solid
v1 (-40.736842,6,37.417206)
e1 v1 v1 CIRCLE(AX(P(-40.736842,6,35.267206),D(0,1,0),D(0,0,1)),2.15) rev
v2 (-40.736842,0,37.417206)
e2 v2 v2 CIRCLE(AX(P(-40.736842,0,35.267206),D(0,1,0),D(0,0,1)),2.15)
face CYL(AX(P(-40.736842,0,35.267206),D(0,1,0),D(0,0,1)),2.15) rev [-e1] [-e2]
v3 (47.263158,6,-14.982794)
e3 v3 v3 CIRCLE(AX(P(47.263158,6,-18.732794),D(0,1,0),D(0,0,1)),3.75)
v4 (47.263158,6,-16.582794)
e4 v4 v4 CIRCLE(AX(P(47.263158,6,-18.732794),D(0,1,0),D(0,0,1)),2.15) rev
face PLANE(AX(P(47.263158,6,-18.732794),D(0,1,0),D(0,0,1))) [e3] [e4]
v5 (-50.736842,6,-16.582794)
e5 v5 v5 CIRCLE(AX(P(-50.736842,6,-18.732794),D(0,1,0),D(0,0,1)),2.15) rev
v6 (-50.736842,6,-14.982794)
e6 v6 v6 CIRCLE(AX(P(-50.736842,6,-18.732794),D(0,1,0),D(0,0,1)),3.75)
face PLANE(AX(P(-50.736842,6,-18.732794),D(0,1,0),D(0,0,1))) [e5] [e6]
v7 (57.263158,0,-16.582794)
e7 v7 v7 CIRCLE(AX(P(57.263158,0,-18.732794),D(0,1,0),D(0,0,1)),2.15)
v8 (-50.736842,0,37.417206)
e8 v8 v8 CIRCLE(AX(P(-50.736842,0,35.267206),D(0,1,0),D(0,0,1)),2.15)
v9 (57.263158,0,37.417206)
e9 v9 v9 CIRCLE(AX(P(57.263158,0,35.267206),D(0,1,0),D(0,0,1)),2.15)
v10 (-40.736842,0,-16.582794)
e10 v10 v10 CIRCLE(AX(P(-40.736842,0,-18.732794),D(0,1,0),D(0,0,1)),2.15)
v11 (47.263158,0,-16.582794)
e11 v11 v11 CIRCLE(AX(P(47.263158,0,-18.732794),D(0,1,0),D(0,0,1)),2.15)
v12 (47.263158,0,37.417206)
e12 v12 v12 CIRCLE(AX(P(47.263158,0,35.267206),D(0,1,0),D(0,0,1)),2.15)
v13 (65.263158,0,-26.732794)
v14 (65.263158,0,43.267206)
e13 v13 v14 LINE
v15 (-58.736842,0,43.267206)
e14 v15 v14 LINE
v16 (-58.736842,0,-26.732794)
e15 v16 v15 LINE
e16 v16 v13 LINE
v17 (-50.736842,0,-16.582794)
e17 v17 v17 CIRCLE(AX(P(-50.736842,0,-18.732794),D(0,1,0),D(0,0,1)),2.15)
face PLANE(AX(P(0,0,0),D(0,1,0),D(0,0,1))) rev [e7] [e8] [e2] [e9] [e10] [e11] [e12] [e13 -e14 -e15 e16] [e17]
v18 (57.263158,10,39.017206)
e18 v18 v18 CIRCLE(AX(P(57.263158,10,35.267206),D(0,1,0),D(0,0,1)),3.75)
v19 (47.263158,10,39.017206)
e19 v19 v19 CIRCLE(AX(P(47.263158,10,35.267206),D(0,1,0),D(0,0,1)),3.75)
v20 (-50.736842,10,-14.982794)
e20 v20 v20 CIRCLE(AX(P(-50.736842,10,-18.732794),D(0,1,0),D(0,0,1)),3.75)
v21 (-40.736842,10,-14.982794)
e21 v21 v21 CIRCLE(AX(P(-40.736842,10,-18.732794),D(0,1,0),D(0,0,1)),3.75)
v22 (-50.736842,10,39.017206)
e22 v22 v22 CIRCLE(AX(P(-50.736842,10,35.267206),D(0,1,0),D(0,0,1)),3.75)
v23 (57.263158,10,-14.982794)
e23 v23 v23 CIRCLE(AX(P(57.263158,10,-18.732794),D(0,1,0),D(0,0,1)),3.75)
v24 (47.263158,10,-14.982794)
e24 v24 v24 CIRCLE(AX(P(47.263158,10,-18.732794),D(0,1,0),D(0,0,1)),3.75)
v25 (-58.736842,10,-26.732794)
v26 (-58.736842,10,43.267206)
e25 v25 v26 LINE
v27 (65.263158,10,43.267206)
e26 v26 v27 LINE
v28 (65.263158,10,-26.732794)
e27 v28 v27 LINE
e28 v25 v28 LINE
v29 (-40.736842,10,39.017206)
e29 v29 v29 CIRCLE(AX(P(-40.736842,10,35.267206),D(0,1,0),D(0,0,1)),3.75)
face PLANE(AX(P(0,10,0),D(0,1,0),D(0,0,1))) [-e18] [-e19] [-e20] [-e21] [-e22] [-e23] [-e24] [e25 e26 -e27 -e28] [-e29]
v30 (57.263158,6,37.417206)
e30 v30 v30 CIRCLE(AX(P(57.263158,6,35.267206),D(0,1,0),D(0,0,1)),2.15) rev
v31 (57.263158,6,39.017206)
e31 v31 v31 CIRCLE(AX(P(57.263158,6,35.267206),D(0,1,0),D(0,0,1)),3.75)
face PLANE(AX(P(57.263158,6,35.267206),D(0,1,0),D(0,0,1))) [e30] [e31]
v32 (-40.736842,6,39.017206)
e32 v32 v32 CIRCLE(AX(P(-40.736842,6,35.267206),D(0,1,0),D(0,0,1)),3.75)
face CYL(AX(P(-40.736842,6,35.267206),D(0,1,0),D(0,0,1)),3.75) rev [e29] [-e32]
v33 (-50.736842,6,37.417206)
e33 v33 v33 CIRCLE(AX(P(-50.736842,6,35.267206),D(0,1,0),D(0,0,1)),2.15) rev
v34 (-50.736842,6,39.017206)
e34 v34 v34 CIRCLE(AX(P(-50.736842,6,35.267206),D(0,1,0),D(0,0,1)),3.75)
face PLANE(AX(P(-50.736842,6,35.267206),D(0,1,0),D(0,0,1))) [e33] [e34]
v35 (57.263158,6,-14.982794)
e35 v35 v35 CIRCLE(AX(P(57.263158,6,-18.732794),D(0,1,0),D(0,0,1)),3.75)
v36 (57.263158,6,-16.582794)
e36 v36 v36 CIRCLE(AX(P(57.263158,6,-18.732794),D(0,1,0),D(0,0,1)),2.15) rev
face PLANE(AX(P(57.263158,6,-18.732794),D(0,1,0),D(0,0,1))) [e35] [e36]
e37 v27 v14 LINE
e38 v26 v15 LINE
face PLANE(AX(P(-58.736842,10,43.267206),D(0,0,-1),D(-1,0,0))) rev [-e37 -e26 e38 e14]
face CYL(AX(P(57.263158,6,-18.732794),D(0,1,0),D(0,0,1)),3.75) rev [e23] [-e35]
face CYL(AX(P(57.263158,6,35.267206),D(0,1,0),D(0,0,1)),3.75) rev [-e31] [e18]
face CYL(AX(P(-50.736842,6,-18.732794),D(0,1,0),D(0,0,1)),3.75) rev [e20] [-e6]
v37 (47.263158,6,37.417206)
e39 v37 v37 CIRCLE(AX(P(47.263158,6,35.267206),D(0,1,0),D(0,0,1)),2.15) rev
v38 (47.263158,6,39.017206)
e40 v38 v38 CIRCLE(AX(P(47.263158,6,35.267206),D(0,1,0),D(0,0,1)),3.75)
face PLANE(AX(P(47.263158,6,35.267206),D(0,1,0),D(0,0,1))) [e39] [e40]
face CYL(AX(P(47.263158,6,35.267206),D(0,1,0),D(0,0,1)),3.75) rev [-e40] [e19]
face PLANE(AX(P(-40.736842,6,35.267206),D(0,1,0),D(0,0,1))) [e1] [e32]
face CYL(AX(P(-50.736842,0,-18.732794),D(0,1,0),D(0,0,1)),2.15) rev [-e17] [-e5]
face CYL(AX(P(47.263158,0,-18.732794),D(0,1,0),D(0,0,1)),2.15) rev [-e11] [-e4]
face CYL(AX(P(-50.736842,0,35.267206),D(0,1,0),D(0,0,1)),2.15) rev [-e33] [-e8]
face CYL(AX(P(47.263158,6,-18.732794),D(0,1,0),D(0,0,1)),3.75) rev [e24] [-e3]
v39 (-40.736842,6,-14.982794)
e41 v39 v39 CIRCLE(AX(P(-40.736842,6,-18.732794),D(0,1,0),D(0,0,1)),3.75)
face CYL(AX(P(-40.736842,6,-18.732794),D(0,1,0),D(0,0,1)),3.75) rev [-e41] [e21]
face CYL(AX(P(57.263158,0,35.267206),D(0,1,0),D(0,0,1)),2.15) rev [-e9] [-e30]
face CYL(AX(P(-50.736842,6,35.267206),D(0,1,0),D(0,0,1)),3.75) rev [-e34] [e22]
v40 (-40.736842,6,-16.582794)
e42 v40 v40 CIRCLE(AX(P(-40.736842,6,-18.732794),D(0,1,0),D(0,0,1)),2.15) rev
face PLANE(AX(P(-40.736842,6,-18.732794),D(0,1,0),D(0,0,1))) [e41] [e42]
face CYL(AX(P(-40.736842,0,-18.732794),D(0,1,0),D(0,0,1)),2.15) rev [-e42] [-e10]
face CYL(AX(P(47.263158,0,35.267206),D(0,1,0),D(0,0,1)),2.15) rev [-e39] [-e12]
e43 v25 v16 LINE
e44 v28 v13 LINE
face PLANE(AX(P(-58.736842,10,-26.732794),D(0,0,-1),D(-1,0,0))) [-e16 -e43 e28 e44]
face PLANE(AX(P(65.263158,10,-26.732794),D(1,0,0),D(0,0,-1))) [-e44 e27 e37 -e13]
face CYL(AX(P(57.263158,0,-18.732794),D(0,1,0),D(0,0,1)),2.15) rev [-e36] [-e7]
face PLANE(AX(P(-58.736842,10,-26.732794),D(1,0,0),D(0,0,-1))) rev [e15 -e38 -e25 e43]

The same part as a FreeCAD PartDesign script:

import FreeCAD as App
import Part
import Sketcher
from FreeCAD import Vector


def add_polygon(sketch, points):
    """Adds a closed chain of lines whose ends are joined by coincident constraints."""
    first, n = sketch.GeometryCount, len(points)
    for a, b in zip(points, points[1:] + points[:1]):
        sketch.addGeometry(Part.LineSegment(App.Vector(*a, 0), App.Vector(*b, 0)), False)
    for i in range(n):
        sketch.addConstraint(Sketcher.Constraint("Coincident", first + i, 2, first + (i + 1) % n, 1))

doc = App.newDocument("Part")
body = doc.addObject("PartDesign::Body", "Body")

# Sketch on XZ plane
sketch1 = body.newObject("Sketcher::SketchObject", "Sketch")
sketch1.AttachmentSupport = (doc.getObject("XZ_Plane"), [""])
sketch1.MapMode = "FlatFace"
add_polygon(sketch1, [(-58.736842, -26.732794), (-58.736842, 43.267206), (65.263158, 43.267206), (65.263158, -26.732794)])  # lines 0-3
sketch1.addConstraint([
    Sketcher.Constraint("Vertical", 0),
    Sketcher.Constraint("Horizontal", 1),
    Sketcher.Constraint("Vertical", 2),
    Sketcher.Constraint("Horizontal", 3),
    Sketcher.Constraint("DistanceX", 1, 1, 1, 2, 124.0),
    Sketcher.Constraint("DistanceY", 0, 1, 0, 2, 70.0),
    Sketcher.Constraint("DistanceX", 0, 2, -1, 1, 58.736842),
    Sketcher.Constraint("DistanceY", -1, 1, 0, 2, 43.267206),
])
pad1 = body.newObject("PartDesign::Pad", "Pad")
pad1.Profile = sketch1
pad1.Length = 10
pad1.Reversed = True

# Sketch on XZ plane
sketch2 = body.newObject("Sketcher::SketchObject", "Sketch001")
sketch2.AttachmentSupport = (doc.getObject("XZ_Plane"), [""])
sketch2.MapMode = "FlatFace"
sketch2.AttachmentOffset = App.Placement(Vector(0, 0, -10), App.Rotation())
sketch2.addGeometry([
    Part.Circle(Vector(-50.736842, -18.732794, 0), Vector(0, 0, 1), 2.15),  # 0
    Part.Circle(Vector(-40.736842, -18.732794, 0), Vector(0, 0, 1), 2.15),  # 1
    Part.Circle(Vector(-50.736842, 35.267206, 0), Vector(0, 0, 1), 2.15),  # 2
    Part.Circle(Vector(-40.736842, 35.267206, 0), Vector(0, 0, 1), 2.15),  # 3
    Part.Circle(Vector(47.263158, -18.732794, 0), Vector(0, 0, 1), 2.15),  # 4
    Part.Circle(Vector(57.263158, -18.732794, 0), Vector(0, 0, 1), 2.15),  # 5
    Part.Circle(Vector(47.263158, 35.267206, 0), Vector(0, 0, 1), 2.15),  # 6
    Part.Circle(Vector(57.263158, 35.267206, 0), Vector(0, 0, 1), 2.15),  # 7
], False)
sketch2.addConstraint([
    Sketcher.Constraint("Equal", 0, 1),
    Sketcher.Constraint("Equal", 1, 2),
    Sketcher.Constraint("Equal", 2, 3),
    Sketcher.Constraint("Equal", 3, 4),
    Sketcher.Constraint("Equal", 4, 5),
    Sketcher.Constraint("Equal", 5, 6),
    Sketcher.Constraint("Equal", 6, 7),
    Sketcher.Constraint("Horizontal", 0, 3, 1, 3),
    Sketcher.Constraint("Horizontal", 2, 3, 3, 3),
    Sketcher.Constraint("Horizontal", 1, 3, 4, 3),
    Sketcher.Constraint("Horizontal", 4, 3, 5, 3),
    Sketcher.Constraint("Horizontal", 3, 3, 6, 3),
    Sketcher.Constraint("Horizontal", 6, 3, 7, 3),
    Sketcher.Constraint("Vertical", 0, 3, 2, 3),
    Sketcher.Constraint("Vertical", 1, 3, 3, 3),
    Sketcher.Constraint("Vertical", 4, 3, 6, 3),
    Sketcher.Constraint("Vertical", 5, 3, 7, 3),
    Sketcher.Constraint("Diameter", 0, 4.3),
    Sketcher.Constraint("DistanceX", 0, 3, 1, 3, 10.0),
    Sketcher.Constraint("DistanceY", 0, 3, 2, 3, 54.0),
    Sketcher.Constraint("DistanceX", 1, 3, 4, 3, 88.0),
    Sketcher.Constraint("DistanceX", 4, 3, 5, 3, 10.0),
    Sketcher.Constraint("DistanceX", 0, 3, -1, 1, 50.736842),
    Sketcher.Constraint("DistanceY", 0, 3, -1, 1, 18.732794),
])
pocket1 = body.newObject("PartDesign::Pocket", "Pocket")
pocket1.Profile = sketch2
pocket1.Type = "ThroughAll"
pocket1.Reversed = True

# Sketch on XZ plane
sketch3 = body.newObject("Sketcher::SketchObject", "Sketch002")
sketch3.AttachmentSupport = (doc.getObject("XZ_Plane"), [""])
sketch3.MapMode = "FlatFace"
sketch3.AttachmentOffset = App.Placement(Vector(0, 0, -10), App.Rotation())
sketch3.addGeometry([
    Part.Circle(Vector(-50.736842, -18.732794, 0), Vector(0, 0, 1), 3.75),  # 0
    Part.Circle(Vector(-40.736842, -18.732794, 0), Vector(0, 0, 1), 3.75),  # 1
    Part.Circle(Vector(47.263158, -18.732794, 0), Vector(0, 0, 1), 3.75),  # 2
    Part.Circle(Vector(57.263158, -18.732794, 0), Vector(0, 0, 1), 3.75),  # 3
    Part.Circle(Vector(57.263158, 35.267206, 0), Vector(0, 0, 1), 3.75),  # 4
    Part.Circle(Vector(47.263158, 35.267206, 0), Vector(0, 0, 1), 3.75),  # 5
    Part.Circle(Vector(-40.736842, 35.267206, 0), Vector(0, 0, 1), 3.75),  # 6
    Part.Circle(Vector(-50.736842, 35.267206, 0), Vector(0, 0, 1), 3.75),  # 7
], False)
sketch3.addConstraint([
    Sketcher.Constraint("Equal", 0, 1),
    Sketcher.Constraint("Equal", 1, 2),
    Sketcher.Constraint("Equal", 2, 3),
    Sketcher.Constraint("Equal", 3, 4),
    Sketcher.Constraint("Equal", 4, 5),
    Sketcher.Constraint("Equal", 5, 6),
    Sketcher.Constraint("Equal", 6, 7),
    Sketcher.Constraint("Horizontal", 0, 3, 1, 3),
    Sketcher.Constraint("Horizontal", 1, 3, 2, 3),
    Sketcher.Constraint("Horizontal", 2, 3, 3, 3),
    Sketcher.Constraint("Horizontal", 4, 3, 5, 3),
    Sketcher.Constraint("Horizontal", 5, 3, 6, 3),
    Sketcher.Constraint("Horizontal", 6, 3, 7, 3),
    Sketcher.Constraint("Vertical", 3, 3, 4, 3),
    Sketcher.Constraint("Vertical", 2, 3, 5, 3),
    Sketcher.Constraint("Vertical", 1, 3, 6, 3),
    Sketcher.Constraint("Vertical", 0, 3, 7, 3),
    Sketcher.Constraint("Diameter", 0, 7.5),
    Sketcher.Constraint("DistanceX", 0, 3, 1, 3, 10.0),
    Sketcher.Constraint("DistanceX", 1, 3, 2, 3, 88.0),
    Sketcher.Constraint("DistanceX", 2, 3, 3, 3, 10.0),
    Sketcher.Constraint("DistanceY", 3, 3, 4, 3, 54.0),
    Sketcher.Constraint("DistanceX", 0, 3, -1, 1, 50.736842),
    Sketcher.Constraint("DistanceY", 0, 3, -1, 1, 18.732794),
])
pocket2 = body.newObject("PartDesign::Pocket", "Pocket001")
pocket2.Profile = sketch3
pocket2.Length = 4
pocket2.Reversed = True

doc.recompute()
